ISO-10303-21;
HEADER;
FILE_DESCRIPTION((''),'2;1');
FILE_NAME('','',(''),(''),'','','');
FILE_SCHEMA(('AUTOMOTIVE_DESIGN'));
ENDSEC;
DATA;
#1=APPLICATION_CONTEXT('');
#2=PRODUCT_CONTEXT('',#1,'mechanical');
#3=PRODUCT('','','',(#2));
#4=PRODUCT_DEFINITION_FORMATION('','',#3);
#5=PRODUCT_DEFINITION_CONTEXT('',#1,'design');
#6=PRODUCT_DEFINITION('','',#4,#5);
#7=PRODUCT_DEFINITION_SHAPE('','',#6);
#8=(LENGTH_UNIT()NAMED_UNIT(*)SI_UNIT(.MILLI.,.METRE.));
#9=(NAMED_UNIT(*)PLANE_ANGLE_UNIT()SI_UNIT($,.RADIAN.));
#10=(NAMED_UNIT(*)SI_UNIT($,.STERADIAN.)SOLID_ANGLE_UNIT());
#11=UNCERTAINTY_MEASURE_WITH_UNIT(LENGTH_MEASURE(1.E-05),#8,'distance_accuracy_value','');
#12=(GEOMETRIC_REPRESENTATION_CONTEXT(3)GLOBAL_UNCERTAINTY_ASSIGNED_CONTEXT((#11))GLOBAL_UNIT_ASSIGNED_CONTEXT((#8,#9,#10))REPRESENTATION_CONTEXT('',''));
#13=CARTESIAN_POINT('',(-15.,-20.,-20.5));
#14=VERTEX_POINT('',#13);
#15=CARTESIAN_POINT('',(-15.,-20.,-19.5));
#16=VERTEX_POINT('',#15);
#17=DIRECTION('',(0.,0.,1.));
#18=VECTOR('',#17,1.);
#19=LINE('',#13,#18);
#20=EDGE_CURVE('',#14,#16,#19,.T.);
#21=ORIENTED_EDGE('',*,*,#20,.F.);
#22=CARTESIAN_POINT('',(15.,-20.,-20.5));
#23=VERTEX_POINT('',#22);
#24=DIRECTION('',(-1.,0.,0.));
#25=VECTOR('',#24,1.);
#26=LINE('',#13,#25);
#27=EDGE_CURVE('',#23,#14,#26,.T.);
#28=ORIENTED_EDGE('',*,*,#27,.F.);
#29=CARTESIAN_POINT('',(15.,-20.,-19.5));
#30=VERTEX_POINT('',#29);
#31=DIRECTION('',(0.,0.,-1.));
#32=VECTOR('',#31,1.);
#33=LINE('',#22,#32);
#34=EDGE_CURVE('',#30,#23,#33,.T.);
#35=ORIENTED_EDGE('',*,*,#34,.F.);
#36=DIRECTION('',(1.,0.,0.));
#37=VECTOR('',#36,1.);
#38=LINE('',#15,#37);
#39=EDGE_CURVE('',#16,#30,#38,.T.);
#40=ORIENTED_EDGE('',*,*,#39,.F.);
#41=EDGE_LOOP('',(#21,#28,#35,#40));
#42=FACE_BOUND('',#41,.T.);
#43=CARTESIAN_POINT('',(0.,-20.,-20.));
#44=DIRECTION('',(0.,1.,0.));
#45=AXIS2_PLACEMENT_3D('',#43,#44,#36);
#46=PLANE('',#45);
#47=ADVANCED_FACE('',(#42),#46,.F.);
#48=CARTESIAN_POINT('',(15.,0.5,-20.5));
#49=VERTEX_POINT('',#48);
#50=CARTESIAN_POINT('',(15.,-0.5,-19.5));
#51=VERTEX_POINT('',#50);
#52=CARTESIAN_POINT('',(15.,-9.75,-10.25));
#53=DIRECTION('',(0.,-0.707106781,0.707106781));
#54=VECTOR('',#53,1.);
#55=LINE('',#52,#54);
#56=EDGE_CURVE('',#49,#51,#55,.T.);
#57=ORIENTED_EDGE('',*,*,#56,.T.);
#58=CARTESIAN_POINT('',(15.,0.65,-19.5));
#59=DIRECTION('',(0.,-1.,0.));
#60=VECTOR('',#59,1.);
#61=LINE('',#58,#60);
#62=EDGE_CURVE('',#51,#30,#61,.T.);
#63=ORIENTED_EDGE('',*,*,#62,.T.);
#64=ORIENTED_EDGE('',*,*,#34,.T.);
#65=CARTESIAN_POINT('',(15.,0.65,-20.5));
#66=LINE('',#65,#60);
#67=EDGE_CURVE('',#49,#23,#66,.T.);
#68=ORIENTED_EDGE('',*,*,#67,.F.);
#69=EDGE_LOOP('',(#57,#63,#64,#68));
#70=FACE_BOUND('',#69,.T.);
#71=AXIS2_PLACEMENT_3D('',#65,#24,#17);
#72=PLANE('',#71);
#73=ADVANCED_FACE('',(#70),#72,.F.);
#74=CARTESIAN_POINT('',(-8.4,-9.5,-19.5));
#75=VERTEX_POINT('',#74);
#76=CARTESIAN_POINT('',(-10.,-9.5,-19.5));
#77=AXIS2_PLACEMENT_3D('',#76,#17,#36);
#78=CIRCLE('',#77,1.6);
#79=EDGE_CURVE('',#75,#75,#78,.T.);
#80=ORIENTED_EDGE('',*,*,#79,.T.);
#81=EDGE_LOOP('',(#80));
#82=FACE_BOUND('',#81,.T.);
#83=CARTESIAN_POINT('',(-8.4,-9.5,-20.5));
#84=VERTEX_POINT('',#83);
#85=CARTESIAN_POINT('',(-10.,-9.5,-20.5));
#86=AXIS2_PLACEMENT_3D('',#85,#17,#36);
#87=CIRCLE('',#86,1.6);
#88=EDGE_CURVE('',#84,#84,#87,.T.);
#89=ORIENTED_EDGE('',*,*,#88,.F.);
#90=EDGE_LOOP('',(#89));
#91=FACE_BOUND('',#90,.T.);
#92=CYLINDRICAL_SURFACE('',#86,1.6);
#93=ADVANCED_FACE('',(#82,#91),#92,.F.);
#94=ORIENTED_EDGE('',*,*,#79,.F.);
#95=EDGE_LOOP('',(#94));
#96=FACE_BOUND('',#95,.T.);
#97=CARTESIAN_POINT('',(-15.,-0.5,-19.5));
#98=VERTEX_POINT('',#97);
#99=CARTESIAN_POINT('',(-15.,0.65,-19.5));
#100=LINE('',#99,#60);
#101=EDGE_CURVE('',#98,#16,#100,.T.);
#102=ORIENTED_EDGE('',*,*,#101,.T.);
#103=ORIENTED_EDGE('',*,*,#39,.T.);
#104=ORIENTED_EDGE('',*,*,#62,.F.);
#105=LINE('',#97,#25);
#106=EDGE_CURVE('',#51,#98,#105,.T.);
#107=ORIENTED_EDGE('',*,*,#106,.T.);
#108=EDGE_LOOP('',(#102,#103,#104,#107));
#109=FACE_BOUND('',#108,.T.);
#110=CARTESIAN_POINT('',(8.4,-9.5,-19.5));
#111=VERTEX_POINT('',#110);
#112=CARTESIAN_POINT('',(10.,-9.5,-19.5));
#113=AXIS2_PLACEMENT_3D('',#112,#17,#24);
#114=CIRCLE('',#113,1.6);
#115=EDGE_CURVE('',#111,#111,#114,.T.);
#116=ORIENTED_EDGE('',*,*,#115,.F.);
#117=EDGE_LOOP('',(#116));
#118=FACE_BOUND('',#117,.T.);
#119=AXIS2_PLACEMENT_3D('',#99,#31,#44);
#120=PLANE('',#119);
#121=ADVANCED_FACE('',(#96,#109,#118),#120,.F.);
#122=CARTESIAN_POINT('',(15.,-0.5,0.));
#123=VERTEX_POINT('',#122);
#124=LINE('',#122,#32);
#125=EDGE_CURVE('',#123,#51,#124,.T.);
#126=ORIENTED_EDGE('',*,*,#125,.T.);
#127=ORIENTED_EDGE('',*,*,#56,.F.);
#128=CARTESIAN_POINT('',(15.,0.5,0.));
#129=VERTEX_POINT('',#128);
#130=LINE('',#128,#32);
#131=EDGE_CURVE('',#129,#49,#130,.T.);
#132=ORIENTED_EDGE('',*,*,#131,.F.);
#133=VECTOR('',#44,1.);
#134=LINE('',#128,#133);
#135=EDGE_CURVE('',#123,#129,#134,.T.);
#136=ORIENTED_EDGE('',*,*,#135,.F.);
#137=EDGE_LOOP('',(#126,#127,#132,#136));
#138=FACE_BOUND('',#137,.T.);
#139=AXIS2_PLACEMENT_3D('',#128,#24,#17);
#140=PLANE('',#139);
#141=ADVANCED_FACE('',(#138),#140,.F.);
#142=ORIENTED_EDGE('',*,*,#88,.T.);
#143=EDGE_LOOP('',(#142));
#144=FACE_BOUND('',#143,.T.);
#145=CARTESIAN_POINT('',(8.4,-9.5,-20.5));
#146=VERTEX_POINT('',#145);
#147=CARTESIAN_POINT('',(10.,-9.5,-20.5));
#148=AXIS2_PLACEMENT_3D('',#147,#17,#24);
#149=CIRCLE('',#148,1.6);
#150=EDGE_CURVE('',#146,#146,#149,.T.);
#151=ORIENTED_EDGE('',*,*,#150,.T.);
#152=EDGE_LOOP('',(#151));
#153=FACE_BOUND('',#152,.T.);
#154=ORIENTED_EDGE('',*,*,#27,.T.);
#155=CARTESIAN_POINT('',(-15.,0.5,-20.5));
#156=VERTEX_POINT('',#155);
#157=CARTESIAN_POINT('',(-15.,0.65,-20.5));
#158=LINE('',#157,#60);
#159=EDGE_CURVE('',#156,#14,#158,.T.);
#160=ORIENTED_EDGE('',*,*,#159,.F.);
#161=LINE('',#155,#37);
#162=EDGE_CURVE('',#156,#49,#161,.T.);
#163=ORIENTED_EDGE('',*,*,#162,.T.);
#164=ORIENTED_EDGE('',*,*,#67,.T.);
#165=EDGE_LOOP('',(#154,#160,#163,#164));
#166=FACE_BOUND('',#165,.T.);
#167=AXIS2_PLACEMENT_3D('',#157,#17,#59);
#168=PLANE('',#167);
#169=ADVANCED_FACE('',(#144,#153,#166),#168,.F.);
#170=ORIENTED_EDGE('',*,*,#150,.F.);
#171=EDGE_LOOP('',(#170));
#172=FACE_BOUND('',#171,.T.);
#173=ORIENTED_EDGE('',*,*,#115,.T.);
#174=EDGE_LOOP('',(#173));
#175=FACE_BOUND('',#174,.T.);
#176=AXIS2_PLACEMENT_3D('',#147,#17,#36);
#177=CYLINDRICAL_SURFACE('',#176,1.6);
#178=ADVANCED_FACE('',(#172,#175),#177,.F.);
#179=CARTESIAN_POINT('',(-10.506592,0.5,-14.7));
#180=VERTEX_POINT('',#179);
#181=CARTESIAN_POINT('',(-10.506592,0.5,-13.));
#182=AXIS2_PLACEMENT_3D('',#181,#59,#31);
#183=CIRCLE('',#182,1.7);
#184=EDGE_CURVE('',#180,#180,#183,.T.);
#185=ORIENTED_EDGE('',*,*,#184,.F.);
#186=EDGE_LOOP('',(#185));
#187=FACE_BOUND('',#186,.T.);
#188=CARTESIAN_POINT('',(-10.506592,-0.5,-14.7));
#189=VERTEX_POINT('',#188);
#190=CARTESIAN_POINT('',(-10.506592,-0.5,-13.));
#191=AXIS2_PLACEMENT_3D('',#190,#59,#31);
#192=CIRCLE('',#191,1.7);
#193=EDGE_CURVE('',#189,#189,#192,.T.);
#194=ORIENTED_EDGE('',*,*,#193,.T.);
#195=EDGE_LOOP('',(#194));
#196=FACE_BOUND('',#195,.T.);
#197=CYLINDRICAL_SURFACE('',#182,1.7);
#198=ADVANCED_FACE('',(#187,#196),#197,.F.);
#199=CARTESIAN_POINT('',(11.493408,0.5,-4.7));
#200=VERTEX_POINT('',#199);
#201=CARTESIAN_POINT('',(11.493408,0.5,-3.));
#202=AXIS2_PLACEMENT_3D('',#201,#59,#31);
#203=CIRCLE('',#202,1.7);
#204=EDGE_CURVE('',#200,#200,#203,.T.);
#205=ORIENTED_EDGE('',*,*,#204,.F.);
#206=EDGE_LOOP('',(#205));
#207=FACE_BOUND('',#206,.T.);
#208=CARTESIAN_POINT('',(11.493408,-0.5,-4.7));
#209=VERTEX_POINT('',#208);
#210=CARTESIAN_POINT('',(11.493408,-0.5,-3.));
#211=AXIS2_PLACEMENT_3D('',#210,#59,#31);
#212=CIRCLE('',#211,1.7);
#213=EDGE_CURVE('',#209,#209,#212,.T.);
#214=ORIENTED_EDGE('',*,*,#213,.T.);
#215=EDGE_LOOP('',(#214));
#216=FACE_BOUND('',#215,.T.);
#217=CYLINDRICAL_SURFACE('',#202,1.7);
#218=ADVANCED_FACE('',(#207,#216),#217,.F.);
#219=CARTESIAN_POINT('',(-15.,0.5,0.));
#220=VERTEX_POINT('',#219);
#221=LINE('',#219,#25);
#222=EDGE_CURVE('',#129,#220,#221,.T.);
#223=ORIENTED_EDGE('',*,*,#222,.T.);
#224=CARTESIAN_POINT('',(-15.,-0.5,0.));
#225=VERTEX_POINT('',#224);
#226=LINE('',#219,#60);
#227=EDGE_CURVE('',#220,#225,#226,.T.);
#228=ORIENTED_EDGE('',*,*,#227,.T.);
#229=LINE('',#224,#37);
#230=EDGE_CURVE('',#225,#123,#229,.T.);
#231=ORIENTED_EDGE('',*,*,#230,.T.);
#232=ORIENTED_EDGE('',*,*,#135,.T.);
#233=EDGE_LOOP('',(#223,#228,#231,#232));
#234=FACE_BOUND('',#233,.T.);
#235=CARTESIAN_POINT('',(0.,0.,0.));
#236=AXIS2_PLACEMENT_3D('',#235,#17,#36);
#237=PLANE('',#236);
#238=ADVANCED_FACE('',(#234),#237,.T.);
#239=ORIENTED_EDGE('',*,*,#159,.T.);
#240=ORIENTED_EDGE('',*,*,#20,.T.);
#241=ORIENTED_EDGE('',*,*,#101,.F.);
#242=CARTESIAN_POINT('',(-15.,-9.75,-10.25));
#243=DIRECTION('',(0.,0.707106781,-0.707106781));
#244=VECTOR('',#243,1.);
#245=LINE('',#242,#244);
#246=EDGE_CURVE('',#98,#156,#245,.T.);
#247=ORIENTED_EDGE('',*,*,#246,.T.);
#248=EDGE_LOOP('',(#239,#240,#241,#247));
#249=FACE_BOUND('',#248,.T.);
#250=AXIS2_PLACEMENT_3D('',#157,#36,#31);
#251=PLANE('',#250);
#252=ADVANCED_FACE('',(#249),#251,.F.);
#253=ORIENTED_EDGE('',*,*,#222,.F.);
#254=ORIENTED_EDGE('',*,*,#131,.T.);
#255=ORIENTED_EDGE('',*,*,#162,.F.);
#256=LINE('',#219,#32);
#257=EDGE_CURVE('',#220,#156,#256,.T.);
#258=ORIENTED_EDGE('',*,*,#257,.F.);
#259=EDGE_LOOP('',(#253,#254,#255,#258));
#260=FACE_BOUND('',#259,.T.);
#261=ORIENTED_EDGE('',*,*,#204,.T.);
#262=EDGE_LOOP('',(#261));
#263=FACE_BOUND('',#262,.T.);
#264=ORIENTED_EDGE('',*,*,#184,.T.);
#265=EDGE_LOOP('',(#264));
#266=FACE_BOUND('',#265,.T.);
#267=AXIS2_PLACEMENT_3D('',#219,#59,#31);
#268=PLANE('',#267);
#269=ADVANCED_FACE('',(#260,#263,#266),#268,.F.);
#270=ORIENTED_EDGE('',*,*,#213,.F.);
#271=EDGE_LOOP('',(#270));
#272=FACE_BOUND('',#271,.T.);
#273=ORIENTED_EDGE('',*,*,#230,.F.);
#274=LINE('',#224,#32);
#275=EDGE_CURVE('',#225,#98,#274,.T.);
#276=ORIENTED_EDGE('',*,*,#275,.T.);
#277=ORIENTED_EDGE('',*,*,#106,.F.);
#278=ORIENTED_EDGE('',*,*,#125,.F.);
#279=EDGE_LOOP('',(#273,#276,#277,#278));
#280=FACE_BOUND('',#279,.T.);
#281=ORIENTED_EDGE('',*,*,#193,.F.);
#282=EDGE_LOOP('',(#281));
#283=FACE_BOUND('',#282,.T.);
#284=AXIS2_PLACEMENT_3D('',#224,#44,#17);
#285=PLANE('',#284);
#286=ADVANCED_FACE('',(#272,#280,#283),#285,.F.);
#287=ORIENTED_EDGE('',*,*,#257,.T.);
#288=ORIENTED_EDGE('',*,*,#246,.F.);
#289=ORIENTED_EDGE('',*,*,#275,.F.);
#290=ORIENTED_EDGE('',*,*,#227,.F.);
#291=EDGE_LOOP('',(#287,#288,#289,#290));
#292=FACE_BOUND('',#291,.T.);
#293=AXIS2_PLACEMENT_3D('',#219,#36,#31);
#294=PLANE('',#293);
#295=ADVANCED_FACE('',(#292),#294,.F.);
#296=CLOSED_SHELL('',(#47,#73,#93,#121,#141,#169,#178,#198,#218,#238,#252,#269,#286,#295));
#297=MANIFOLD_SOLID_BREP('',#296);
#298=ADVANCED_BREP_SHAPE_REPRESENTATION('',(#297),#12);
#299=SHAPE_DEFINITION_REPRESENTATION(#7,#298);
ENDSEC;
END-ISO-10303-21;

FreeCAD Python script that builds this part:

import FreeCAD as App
import Part
import Sketcher

V = App.Vector
Q = App.Units.Quantity


def add_polygon(sketch, points):
    """Adds a closed chain of lines whose ends are joined by coincident constraints."""
    first, n = sketch.GeometryCount, len(points)
    for a, b in zip(points, points[1:] + points[:1]):
        sketch.addGeometry(Part.LineSegment(App.Vector(*a, 0), App.Vector(*b, 0)), False)
    for i in range(n):
        sketch.addConstraint(Sketcher.Constraint("Coincident", first + i, 2, first + (i + 1) % n, 1))

doc = App.newDocument("Part")
params = doc.addObject("Spreadsheet::Sheet", "Params")
for row, (alias, value) in enumerate([
    ("sketch1_width", "30 mm"),
    ("sketch1_height", "1 mm"),
    ("sketch2_width", "20 mm"),
    ("sketch3_diameter", "3.4 mm"),
    ("sketch4_diameter", "3.2 mm"),
], start=1):
    params.set(f"A{row}", alias)
    params.set(f"B{row}", "=" + value)
    params.setAlias(f"B{row}", alias)

body = doc.addObject("PartDesign::Body", "Body")

sketch1 = doc.addObject("Sketcher::SketchObject", "Sketch")
body.addObject(sketch1)
sketch1.AttachmentSupport = (doc.XY_Plane, [""])
sketch1.MapMode = "FlatFace"
add_polygon(sketch1, [(-15, 0.5), (-15, -0.5), (15, -0.5), (15, 0.5)])
sketch1.addConstraint([
    Sketcher.Constraint("Vertical", 0),
    Sketcher.Constraint("Horizontal", 1),
    Sketcher.Constraint("Vertical", 2),
    Sketcher.Constraint("Horizontal", 3),
    Sketcher.Constraint("Symmetric", 0, 2, 2, 2, -1, 1),
    Sketcher.Constraint("DistanceX", 1, 1, 1, 2, Q("30 mm")),
    Sketcher.Constraint("DistanceY", 0, 2, 0, 1, Q("1 mm")),
])
sketch1.setExpression("Constraints[9]", "Params.sketch1_width")
sketch1.setExpression("Constraints[10]", "Params.sketch1_height")

sketch2 = doc.addObject("Sketcher::SketchObject", "Sketch001")
body.addObject(sketch2)
sketch2.AttachmentSupport = (doc.YZ_Plane, [""])
sketch2.MapMode = "FlatFace"
sketch2.addGeometry([
    Part.LineSegment(V(0, 0, 0), V(0, -20, 0)),
    Part.LineSegment(V(0, -20, 0), V(-20, -20, 0)),
], False)
sketch2.addConstraint([
    Sketcher.Constraint("Coincident", 0, 2, 1, 1),
    Sketcher.Constraint("Vertical", 0),
    Sketcher.Constraint("Horizontal", 1),
    Sketcher.Constraint("Coincident", 0, 1, -1, 1),
    Sketcher.Constraint("Equal", 1, 0),
    Sketcher.Constraint("DistanceX", 1, 2, 1, 1, Q("20 mm")),
])
sketch2.setExpression("Constraints[5]", "Params.sketch2_width")
doc.recompute()

additivepipe = doc.addObject("PartDesign::AdditivePipe", "AdditivePipe")
body.addObject(additivepipe)
additivepipe.Profile = sketch1
additivepipe.Spine = (sketch2, ["Edge1", "Edge2"])
additivepipe.Transition = "Right corner"

sketch3 = doc.addObject("Sketcher::SketchObject", "Sketch002")
body.addObject(sketch3)
sketch3.AttachmentSupport = (doc.XZ_Plane, [""])
sketch3.MapMode = "FlatFace"
sketch3.AttachmentOffset = App.Placement(V(0, 0, 0.5), App.Rotation())
sketch3.addGeometry([
    Part.Circle(V(11.493408, -3, 0), V(0, 0, 1), 1.7),
    Part.Circle(V(-10.506592, -13, 0), V(0, 0, 1), 1.7),
], False)
sketch3.addConstraint([
    Sketcher.Constraint("Equal", 0, 1),
    Sketcher.Constraint("Diameter", 0, Q("3.4 mm")),
    Sketcher.Constraint("DistanceY", 0, 3, -1, 1, Q("3 mm")),
    Sketcher.Constraint("DistanceY", 1, 3, -1, 1, Q("13 mm")),
    Sketcher.Constraint("DistanceX", 1, 3, 0, 3, Q("22 mm")),
    Sketcher.Constraint("DistanceX", -1, 1, 0, 3, Q("11.493408 mm")),
])
sketch3.setExpression("Constraints[1]", "Params.sketch3_diameter")
pocket1 = doc.addObject("PartDesign::Pocket", "Pocket")
body.addObject(pocket1)
pocket1.Profile = sketch3
pocket1.Type = "ThroughAll"

sketch4 = doc.addObject("Sketcher::SketchObject", "Sketch003")
body.addObject(sketch4)
sketch4.AttachmentSupport = (doc.XY_Plane, [""])
sketch4.MapMode = "FlatFace"
sketch4.AttachmentOffset = App.Placement(V(0, 0, -19.5), App.Rotation())
sketch4.addGeometry([
    Part.Circle(V(-10, -9.5, 0), V(0, 0, 1), 1.6),
    Part.Circle(V(10, -9.5, 0), V(0, 0, 1), 1.6),
], False)
sketch4.addConstraint([
    Sketcher.Constraint("Equal", 0, 1),
    Sketcher.Constraint("Symmetric", 0, 3, 1, 3, -2),
    Sketcher.Constraint("Diameter", 0, Q("3.2 mm")),
    Sketcher.Constraint("DistanceX", 0, 3, -1, 1, Q("10 mm")),
    Sketcher.Constraint("DistanceY", 0, 3, -1, 1, Q("9.5 mm")),
])
sketch4.setExpression("Constraints[2]", "Params.sketch4_diameter")
pocket2 = doc.addObject("PartDesign::Pocket", "Pocket001")
body.addObject(pocket2)
pocket2.Profile = sketch4
pocket2.Type = "ThroughAll"

doc.recompute()
